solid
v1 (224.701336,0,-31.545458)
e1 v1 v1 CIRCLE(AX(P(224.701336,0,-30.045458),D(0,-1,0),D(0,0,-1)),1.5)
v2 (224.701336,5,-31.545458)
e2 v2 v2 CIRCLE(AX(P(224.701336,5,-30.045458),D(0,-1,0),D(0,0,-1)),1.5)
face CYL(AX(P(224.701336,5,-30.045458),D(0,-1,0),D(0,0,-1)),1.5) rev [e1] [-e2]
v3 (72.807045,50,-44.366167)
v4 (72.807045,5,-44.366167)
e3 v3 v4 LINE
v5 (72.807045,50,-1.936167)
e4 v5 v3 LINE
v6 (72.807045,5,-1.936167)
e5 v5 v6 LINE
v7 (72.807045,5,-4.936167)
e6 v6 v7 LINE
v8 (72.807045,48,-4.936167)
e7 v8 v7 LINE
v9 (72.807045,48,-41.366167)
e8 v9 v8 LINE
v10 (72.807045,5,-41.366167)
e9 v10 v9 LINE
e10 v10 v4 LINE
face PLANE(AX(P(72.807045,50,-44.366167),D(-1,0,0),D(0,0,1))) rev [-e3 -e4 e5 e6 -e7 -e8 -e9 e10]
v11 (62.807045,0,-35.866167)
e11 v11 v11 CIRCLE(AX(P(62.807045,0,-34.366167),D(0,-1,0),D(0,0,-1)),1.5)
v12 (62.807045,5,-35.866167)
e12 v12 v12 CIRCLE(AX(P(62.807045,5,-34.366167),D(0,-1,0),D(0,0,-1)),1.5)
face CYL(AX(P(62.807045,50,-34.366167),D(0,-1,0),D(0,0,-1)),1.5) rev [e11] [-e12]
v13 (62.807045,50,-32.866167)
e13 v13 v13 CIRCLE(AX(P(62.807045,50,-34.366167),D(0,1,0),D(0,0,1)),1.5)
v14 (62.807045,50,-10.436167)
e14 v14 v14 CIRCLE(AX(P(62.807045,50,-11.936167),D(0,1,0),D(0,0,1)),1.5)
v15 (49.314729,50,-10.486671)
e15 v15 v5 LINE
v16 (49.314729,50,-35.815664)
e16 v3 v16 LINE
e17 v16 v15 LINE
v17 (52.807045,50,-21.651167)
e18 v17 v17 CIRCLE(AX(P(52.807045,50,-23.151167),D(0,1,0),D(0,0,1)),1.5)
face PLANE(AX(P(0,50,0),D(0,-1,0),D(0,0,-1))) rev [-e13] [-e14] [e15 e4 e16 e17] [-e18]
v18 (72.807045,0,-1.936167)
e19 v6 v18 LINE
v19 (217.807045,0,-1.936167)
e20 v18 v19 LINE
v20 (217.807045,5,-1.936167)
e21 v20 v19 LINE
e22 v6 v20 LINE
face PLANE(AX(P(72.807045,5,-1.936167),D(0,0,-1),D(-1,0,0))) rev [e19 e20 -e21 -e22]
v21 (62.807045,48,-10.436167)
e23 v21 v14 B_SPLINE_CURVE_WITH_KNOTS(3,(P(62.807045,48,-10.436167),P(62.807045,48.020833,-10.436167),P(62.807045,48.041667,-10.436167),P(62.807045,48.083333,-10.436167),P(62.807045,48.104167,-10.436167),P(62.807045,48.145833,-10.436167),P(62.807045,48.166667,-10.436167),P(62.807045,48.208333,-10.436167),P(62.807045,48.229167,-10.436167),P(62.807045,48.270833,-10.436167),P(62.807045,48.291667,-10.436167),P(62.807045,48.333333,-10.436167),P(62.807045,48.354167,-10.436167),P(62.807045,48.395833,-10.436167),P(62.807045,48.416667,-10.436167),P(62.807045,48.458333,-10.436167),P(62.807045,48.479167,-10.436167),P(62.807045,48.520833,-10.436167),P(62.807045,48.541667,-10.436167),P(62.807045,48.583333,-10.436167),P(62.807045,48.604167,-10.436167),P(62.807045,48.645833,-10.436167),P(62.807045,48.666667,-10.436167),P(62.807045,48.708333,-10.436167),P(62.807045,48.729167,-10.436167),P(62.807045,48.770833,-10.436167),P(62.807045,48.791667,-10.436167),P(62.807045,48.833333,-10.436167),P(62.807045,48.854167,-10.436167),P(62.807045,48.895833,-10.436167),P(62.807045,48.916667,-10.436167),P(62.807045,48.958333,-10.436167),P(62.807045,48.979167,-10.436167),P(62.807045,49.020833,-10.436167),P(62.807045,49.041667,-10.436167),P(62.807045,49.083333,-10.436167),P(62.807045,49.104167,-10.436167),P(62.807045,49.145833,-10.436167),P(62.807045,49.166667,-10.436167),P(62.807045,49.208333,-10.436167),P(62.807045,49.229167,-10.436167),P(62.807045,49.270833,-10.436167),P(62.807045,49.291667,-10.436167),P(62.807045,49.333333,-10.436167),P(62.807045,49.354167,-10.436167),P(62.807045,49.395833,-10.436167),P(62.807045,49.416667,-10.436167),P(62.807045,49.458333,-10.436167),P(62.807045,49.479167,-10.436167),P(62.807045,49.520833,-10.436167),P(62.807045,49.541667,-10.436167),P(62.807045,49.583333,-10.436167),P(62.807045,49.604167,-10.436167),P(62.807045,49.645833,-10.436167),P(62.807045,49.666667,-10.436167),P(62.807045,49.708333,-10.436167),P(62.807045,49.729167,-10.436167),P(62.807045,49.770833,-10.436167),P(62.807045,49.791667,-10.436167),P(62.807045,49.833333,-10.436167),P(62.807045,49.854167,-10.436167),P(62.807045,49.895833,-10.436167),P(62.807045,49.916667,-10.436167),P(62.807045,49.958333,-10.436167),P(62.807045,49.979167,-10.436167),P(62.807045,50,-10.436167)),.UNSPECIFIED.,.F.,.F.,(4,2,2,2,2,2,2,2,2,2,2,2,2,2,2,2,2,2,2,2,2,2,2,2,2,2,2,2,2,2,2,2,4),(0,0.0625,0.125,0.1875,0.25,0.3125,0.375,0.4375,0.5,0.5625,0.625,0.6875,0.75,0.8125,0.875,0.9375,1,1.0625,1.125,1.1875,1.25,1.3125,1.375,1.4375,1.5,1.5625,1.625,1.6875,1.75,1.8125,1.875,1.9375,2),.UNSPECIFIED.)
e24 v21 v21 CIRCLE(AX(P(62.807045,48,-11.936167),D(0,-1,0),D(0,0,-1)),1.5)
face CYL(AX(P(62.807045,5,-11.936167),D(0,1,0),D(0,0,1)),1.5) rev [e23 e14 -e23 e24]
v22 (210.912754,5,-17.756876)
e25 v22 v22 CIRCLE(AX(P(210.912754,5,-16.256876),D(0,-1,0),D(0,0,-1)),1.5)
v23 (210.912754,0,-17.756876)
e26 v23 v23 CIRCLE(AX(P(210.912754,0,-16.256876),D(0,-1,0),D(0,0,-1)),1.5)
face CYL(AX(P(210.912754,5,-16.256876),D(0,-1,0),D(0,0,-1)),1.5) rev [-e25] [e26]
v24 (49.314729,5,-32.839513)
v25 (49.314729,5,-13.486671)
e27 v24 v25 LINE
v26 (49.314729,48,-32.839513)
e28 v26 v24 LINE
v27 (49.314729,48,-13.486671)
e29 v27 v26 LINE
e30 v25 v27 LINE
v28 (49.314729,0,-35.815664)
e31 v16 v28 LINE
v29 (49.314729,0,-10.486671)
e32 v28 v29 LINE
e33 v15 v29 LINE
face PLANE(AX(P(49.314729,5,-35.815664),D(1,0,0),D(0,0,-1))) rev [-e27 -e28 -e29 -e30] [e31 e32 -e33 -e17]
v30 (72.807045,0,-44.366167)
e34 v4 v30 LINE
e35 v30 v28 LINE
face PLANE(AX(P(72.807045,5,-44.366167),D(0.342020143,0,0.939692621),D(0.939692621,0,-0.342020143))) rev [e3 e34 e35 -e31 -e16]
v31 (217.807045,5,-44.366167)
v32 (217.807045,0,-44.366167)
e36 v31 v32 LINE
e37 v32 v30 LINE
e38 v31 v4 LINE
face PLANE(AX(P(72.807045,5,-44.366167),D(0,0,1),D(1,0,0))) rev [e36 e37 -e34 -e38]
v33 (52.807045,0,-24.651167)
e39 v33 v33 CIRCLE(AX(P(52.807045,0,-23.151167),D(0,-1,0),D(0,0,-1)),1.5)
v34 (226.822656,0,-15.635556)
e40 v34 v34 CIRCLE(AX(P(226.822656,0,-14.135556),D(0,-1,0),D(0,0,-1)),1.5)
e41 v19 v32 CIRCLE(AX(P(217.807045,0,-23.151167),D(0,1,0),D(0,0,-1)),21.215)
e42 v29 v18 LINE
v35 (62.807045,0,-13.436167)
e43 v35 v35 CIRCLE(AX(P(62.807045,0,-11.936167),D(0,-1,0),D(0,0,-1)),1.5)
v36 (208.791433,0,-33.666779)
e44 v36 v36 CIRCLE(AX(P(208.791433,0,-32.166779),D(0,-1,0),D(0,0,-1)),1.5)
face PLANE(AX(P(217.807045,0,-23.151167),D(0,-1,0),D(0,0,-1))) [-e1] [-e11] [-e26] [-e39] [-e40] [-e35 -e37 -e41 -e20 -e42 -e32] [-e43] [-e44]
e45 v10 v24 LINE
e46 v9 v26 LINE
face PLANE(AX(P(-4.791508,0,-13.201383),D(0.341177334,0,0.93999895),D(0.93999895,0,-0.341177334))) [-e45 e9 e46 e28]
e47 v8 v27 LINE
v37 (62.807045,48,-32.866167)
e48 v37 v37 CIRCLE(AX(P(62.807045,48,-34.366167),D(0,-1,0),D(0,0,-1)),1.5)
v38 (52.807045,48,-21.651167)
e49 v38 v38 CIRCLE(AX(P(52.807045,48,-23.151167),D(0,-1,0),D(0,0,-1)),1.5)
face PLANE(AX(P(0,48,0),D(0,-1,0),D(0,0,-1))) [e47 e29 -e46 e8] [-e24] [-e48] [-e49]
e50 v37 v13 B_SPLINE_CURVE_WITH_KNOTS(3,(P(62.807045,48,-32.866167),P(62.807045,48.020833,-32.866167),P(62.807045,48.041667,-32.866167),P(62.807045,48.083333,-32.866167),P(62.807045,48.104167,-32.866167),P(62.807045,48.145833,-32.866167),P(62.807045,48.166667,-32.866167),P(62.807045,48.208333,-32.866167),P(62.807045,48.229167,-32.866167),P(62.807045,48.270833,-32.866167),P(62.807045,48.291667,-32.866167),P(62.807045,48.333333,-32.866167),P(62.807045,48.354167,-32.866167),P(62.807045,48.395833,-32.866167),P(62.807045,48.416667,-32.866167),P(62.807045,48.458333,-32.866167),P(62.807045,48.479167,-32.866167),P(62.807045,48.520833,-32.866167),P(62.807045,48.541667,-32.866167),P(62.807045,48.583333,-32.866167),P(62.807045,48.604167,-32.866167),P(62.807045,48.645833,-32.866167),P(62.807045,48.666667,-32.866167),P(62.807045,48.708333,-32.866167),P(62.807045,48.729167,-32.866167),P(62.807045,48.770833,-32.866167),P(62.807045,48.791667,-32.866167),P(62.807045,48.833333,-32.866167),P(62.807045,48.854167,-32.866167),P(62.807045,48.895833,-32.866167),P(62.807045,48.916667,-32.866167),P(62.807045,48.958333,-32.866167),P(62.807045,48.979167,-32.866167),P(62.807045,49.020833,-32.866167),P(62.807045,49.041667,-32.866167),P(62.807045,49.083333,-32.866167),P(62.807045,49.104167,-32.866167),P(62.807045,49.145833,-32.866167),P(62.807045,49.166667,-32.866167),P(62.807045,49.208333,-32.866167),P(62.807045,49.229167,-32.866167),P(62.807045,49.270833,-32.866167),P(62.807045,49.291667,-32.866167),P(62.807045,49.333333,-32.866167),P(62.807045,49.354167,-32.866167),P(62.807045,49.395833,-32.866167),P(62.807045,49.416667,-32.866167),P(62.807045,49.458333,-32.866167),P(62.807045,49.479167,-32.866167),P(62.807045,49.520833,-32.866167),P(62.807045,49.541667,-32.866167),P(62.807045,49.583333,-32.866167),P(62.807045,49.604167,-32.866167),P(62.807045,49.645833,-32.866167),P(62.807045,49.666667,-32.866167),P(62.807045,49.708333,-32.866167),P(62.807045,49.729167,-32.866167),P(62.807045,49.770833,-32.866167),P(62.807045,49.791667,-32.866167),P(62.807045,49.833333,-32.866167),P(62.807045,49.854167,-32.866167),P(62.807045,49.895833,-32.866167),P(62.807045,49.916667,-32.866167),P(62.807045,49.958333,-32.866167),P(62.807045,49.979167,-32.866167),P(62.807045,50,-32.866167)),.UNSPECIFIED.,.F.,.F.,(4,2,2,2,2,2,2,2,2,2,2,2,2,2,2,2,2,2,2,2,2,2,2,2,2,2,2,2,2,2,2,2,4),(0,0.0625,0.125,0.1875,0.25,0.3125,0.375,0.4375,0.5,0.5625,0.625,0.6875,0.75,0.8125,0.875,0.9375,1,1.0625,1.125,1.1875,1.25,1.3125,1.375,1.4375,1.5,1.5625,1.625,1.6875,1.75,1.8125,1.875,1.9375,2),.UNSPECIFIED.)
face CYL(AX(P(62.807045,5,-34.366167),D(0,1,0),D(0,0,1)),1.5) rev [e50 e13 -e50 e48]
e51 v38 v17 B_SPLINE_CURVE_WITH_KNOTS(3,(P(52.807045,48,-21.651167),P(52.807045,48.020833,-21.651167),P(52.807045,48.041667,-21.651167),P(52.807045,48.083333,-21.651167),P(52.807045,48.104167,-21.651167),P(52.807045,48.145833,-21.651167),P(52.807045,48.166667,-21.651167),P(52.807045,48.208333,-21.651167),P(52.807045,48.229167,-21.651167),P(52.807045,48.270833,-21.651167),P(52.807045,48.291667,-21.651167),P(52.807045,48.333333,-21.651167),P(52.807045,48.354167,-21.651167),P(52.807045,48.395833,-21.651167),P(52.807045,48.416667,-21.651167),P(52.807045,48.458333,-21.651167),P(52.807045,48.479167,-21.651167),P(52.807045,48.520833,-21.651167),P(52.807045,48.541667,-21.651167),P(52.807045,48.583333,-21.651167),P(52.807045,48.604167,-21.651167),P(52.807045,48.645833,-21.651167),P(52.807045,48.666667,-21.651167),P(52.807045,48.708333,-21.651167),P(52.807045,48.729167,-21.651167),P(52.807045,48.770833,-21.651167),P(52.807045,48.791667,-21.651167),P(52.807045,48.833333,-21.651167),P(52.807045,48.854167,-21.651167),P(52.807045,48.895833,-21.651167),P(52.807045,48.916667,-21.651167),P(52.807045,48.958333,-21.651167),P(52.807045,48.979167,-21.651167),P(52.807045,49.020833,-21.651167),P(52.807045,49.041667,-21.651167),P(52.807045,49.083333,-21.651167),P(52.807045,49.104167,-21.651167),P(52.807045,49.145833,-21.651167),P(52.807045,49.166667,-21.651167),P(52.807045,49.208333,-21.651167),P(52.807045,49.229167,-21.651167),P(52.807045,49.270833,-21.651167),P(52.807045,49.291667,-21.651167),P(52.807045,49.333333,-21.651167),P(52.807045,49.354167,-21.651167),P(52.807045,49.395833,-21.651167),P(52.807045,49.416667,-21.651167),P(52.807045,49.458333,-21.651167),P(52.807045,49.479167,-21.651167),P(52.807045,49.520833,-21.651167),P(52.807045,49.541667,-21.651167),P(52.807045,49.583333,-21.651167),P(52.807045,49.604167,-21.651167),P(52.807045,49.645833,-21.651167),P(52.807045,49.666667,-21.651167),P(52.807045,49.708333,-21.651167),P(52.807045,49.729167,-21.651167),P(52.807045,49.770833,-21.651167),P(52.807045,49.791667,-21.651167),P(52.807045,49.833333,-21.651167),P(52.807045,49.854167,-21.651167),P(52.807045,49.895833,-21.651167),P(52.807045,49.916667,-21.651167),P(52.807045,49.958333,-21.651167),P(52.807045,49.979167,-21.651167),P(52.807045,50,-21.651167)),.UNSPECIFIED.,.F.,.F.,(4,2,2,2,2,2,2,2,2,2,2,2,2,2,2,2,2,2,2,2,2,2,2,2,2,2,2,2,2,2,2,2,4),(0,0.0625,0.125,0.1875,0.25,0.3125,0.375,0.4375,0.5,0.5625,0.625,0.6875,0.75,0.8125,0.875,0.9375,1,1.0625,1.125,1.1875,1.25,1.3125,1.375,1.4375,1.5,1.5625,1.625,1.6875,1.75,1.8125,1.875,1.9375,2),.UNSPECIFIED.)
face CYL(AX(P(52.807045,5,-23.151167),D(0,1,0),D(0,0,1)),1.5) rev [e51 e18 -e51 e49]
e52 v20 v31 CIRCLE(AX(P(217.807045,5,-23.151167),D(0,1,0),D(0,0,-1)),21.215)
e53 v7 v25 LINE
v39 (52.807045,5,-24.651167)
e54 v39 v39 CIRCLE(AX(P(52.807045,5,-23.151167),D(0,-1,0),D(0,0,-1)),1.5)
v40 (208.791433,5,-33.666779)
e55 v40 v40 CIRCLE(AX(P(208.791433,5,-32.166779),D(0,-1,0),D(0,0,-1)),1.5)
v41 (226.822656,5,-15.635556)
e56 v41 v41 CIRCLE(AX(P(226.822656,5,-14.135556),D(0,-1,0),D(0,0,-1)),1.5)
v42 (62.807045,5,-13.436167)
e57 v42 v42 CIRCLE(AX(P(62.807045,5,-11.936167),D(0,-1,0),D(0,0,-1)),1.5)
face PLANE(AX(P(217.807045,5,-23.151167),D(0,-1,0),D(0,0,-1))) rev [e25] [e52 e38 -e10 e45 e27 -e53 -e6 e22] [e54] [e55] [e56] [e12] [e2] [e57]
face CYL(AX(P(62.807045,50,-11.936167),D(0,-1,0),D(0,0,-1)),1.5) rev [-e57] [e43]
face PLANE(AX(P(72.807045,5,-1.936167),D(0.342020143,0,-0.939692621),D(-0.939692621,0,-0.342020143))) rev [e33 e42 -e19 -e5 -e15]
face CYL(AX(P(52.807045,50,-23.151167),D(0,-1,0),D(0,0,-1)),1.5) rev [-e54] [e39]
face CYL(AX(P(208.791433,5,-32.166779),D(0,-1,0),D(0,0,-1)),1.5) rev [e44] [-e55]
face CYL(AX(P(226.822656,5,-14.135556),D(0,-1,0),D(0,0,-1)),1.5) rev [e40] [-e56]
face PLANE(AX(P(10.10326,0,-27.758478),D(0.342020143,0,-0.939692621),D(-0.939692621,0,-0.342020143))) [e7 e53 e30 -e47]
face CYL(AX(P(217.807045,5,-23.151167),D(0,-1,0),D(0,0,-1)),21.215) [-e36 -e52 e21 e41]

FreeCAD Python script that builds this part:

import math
import FreeCAD as App
import Part
import Sketcher
Q = App.Units.Quantity


def add_polygon(sketch, points):
    """Adds a closed chain of lines whose ends are joined by coincident constraints."""
    first, n = sketch.GeometryCount, len(points)
    for a, b in zip(points, points[1:] + points[:1]):
        sketch.addGeometry(Part.LineSegment(App.Vector(*a, 0), App.Vector(*b, 0)), False)
    for i in range(n):
        sketch.addConstraint(Sketcher.Constraint("Coincident", first + i, 2, first + (i + 1) % n, 1))

doc = App.newDocument("Part")
params = doc.addObject("Spreadsheet::Sheet", "Params")
for row, (alias, value) in enumerate([
    ("sketch1_width", "145 mm"),
    ("sketch1_length", "25 mm"),
    ("pad1_length", "5 mm"),
    ("sketch2_diameter", "3 mm"),
    ("pocket1_length", "5 mm"),
    ("sketch3_diameter", "3 mm"),
    ("pocket2_length", "50 mm"),
    ("sketch4_length", "25 mm"),
    ("sketch4_height", "42.43 mm"),
    ("pad2_length", "45 mm"),
    ("sketch5_width", "43 mm"),
    ("sketch5_height", "36.43 mm"),
    ("sketch6_width", "43 mm"),
    ("sketch7_diameter", "3 mm"),
    ("pocket3_length", "45 mm"),
], start=1):
    params.set(f"A{row}", alias)
    params.set(f"B{row}", "=" + value)
    params.setAlias(f"B{row}", alias)

body = doc.addObject("PartDesign::Body", "Body")

# Sketch on XZ plane
sketch1 = doc.addObject("Sketcher::SketchObject", "Sketch")
body.addObject(sketch1)
sketch1.AttachmentSupport = (doc.XZ_Plane, [""])
sketch1.MapMode = "FlatFace"
sketch1.addGeometry([
    Part.LineSegment(App.Vector(72.807045, -44.366167, 0), App.Vector(49.314729, -35.815664, 0)),  # 0
    Part.LineSegment(App.Vector(49.314729, -35.815664, 0), App.Vector(49.314729, -10.486671, 0)),  # 1
    Part.LineSegment(App.Vector(49.314729, -10.486671, 0), App.Vector(72.807045, -1.936167, 0)),  # 2
    Part.LineSegment(App.Vector(72.807045, -1.936167, 0), App.Vector(217.807045, -1.936167, 0)),  # 3
    Part.ArcOfCircle(Part.Circle(App.Vector(217.807045, -23.151167, 0), App.Vector(0, 0, 1), 21.215), math.radians(-90), math.radians(90)),  # 4
    Part.LineSegment(App.Vector(217.807045, -44.366167, 0), App.Vector(72.807045, -44.366167, 0)),  # 5
], False)
sketch1.addConstraint([
    Sketcher.Constraint("Coincident", 0, 2, 1, 1),
    Sketcher.Constraint("Coincident", 1, 2, 2, 1),
    Sketcher.Constraint("Coincident", 2, 2, 3, 1),
    Sketcher.Constraint("Tangent", 3, 2, 4, 2),
    Sketcher.Constraint("Tangent", 4, 1, 5, 1),
    Sketcher.Constraint("Coincident", 5, 2, 0, 1),
    Sketcher.Constraint("Vertical", 1),
    Sketcher.Constraint("Horizontal", 3),
    Sketcher.Constraint("Horizontal", 5),
    Sketcher.Constraint("Vertical", 2, 2, 5, 2),
    Sketcher.Constraint("Equal", 0, 2),
    Sketcher.Constraint("DistanceX", 3, 1, 3, 2, Q("145 mm")),
    Sketcher.Constraint("Angle", 0, Q("160 deg")),
    Sketcher.Constraint("Distance", 0, Q("25 mm")),
    Sketcher.Constraint("Radius", 4, Q("21.215 mm")),
    Sketcher.Constraint("DistanceX", -1, 1, 0, 2, Q("49.314729 mm")),
    Sketcher.Constraint("DistanceY", 1, 2, -1, 1, Q("10.486671 mm")),
])
sketch1.setExpression("Constraints[11]", "Params.sketch1_width")
sketch1.setExpression("Constraints[13]", "Params.sketch1_length")
pad1 = doc.addObject("PartDesign::Pad", "Pad")
body.addObject(pad1)
pad1.Profile = sketch1
pad1.setExpression("Length", "Params.pad1_length")
pad1.Reversed = True

# Sketch on XZ plane
sketch2 = doc.addObject("Sketcher::SketchObject", "Sketch001")
body.addObject(sketch2)
sketch2.AttachmentSupport = (doc.XZ_Plane, [""])
sketch2.MapMode = "FlatFace"
sketch2.addGeometry([
    Part.Circle(App.Vector(226.822656, -14.135556, 0), App.Vector(0, 0, 1), 1.5),
    Part.Circle(App.Vector(224.701336, -30.045458, 0), App.Vector(0, 0, 1), 1.5),
    Part.Circle(App.Vector(208.791433, -32.166779, 0), App.Vector(0, 0, 1), 1.5),
    Part.Circle(App.Vector(210.912754, -16.256876, 0), App.Vector(0, 0, 1), 1.5),
], False)
sketch2.addConstraint([
    Sketcher.Constraint("Equal", 0, 1),
    Sketcher.Constraint("Equal", 1, 2),
    Sketcher.Constraint("Equal", 2, 3),
    Sketcher.Constraint("Diameter", 0, Q("3 mm")),
    Sketcher.Constraint("DistanceY", 1, 3, -1, 1, Q("30.045458 mm")),
    Sketcher.Constraint("DistanceY", 2, 3, -1, 1, Q("32.166779 mm")),
    Sketcher.Constraint("DistanceX", 1, 3, 0, 3, Q("2.12132 mm")),
    Sketcher.Constraint("DistanceX", 2, 3, 3, 3, Q("2.12132 mm")),
    Sketcher.Constraint("DistanceY", 3, 3, 0, 3, Q("2.12132 mm")),
    Sketcher.Constraint("DistanceX", -1, 1, 0, 3, Q("226.822656 mm")),
    Sketcher.Constraint("DistanceY", 0, 3, -1, 1, Q("14.135556 mm")),
    Sketcher.Constraint("DistanceX", -1, 1, 2, 3, Q("208.791433 mm")),
])
sketch2.setExpression("Constraints[3]", "Params.sketch2_diameter")
pocket1 = doc.addObject("PartDesign::Pocket", "Pocket")
body.addObject(pocket1)
pocket1.Profile = sketch2
pocket1.setExpression("Length", "Params.pocket1_length")

# Sketch on XZ plane
sketch3 = doc.addObject("Sketcher::SketchObject", "Sketch002")
body.addObject(sketch3)
sketch3.AttachmentSupport = (doc.XZ_Plane, [""])
sketch3.MapMode = "FlatFace"
sketch3.addGeometry([
    Part.Circle(App.Vector(62.807045, -11.936167, 0), App.Vector(0, 0, 1), 1.5),
    Part.Circle(App.Vector(52.807045, -23.151167, 0), App.Vector(0, 0, 1), 1.5),
    Part.Circle(App.Vector(62.807045, -34.366167, 0), App.Vector(0, 0, 1), 1.5),
], False)
sketch3.addConstraint([
    Sketcher.Constraint("Equal", 0, 1),
    Sketcher.Constraint("Equal", 1, 2),
    Sketcher.Constraint("Vertical", 0, 3, 2, 3),
    Sketcher.Constraint("Diameter", 0, Q("3 mm")),
    Sketcher.Constraint("DistanceX", 1, 3, 0, 3, Q("10 mm")),
    Sketcher.Constraint("DistanceY", 2, 3, 0, 3, Q("22.43 mm")),
    Sketcher.Constraint("DistanceY", 1, 3, 0, 3, Q("11.215 mm")),
    Sketcher.Constraint("DistanceX", -1, 1, 0, 3, Q("62.807045 mm")),
    Sketcher.Constraint("DistanceY", 0, 3, -1, 1, Q("11.936167 mm")),
])
sketch3.setExpression("Constraints[3]", "Params.sketch3_diameter")
pocket2 = doc.addObject("PartDesign::Pocket", "Pocket001")
body.addObject(pocket2)
pocket2.Profile = sketch3
pocket2.setExpression("Length", "Params.pocket2_length")

# Sketch on XZ plane
sketch4 = doc.addObject("Sketcher::SketchObject", "Sketch003")
body.addObject(sketch4)
sketch4.AttachmentSupport = (doc.XZ_Plane, [""])
sketch4.MapMode = "FlatFace"
sketch4.AttachmentOffset = App.Placement(App.Vector(0, 0, -5), App.Rotation())
add_polygon(sketch4, [(72.807045, -1.936167), (72.807045, -44.366167), (49.314729, -35.815664), (49.314729, -10.486671)])  # lines 0-3
sketch4.addConstraint([
    Sketcher.Constraint("Vertical", 0),
    Sketcher.Constraint("Vertical", 2),
    Sketcher.Constraint("Equal", 1, 3),
    Sketcher.Constraint("Angle", 1, Q("160 deg")),
    Sketcher.Constraint("Distance", 1, Q("25 mm")),
    Sketcher.Constraint("DistanceY", 0, 2, 0, 1, Q("42.43 mm")),
    Sketcher.Constraint("DistanceX", -1, 1, 1, 2, Q("49.314729 mm")),
    Sketcher.Constraint("DistanceY", 2, 2, -1, 1, Q("10.486671 mm")),
])
sketch4.setExpression("Constraints[8]", "Params.sketch4_length")
sketch4.setExpression("Constraints[9]", "Params.sketch4_height")
pad2 = doc.addObject("PartDesign::Pad", "Pad001")
body.addObject(pad2)
pad2.Profile = sketch4
pad2.setExpression("Length", "Params.pad2_length")
pad2.Reversed = True

# Sketch on YZ plane
sketch5 = doc.addObject("Sketcher::SketchObject", "Sketch004")
body.addObject(sketch5)
sketch5.AttachmentSupport = (doc.YZ_Plane, [""])
sketch5.MapMode = "FlatFace"
sketch5.AttachmentOffset = App.Placement(App.Vector(0, 0, 72.807045), App.Rotation())
add_polygon(sketch5, [(48, -4.936167), (5, -4.936167), (5, -41.366167), (48, -41.366167)])  # lines 0-3
sketch5.addConstraint([
    Sketcher.Constraint("Horizontal", 0),
    Sketcher.Constraint("Vertical", 1),
    Sketcher.Constraint("Horizontal", 2),
    Sketcher.Constraint("Vertical", 3),
    Sketcher.Constraint("DistanceX", 0, 2, 0, 1, Q("43 mm")),
    Sketcher.Constraint("DistanceX", -1, 1, 0, 2, Q("5 mm")),
    Sketcher.Constraint("DistanceY", 1, 2, 1, 1, Q("36.43 mm")),
    Sketcher.Constraint("DistanceY", 0, 2, -1, 1, Q("4.936167 mm")),
])
sketch5.setExpression("Constraints[8]", "Params.sketch5_width")
sketch5.setExpression("Constraints[10]", "Params.sketch5_height")

# Sketch on YZ plane
sketch6 = doc.addObject("Sketcher::SketchObject", "Sketch005")
body.addObject(sketch6)
sketch6.AttachmentSupport = (doc.YZ_Plane, [""])
sketch6.MapMode = "FlatFace"
sketch6.AttachmentOffset = App.Placement(App.Vector(0, 0, 49.314729), App.Rotation())
add_polygon(sketch6, [(48, -32.839513), (5, -32.839513), (5, -13.486671), (48, -13.486671)])  # lines 0-3
sketch6.addConstraint([
    Sketcher.Constraint("Horizontal", 0),
    Sketcher.Constraint("Vertical", 1),
    Sketcher.Constraint("Horizontal", 2),
    Sketcher.Constraint("Vertical", 3),
    Sketcher.Constraint("DistanceX", 0, 2, 0, 1, Q("43 mm")),
    Sketcher.Constraint("DistanceX", -1, 1, 0, 2, Q("5 mm")),
    Sketcher.Constraint("DistanceY", 1, 1, 1, 2, Q("19.352843 mm")),
    Sketcher.Constraint("DistanceY", 1, 2, -1, 1, Q("13.486671 mm")),
])
sketch6.setExpression("Constraints[8]", "Params.sketch6_width")

subtractiveloft = doc.addObject("PartDesign::SubtractiveLoft", "SubtractiveLoft")
body.addObject(subtractiveloft)
subtractiveloft.Profile = sketch5
subtractiveloft.Sections = [sketch6]

# Sketch on XZ plane
sketch7 = doc.addObject("Sketcher::SketchObject", "Sketch006")
body.addObject(sketch7)
sketch7.AttachmentSupport = (doc.XZ_Plane, [""])
sketch7.MapMode = "FlatFace"
sketch7.AttachmentOffset = App.Placement(App.Vector(0, 0, -5), App.Rotation())
sketch7.addGeometry([
    Part.Circle(App.Vector(62.807045, -34.366167, 0), App.Vector(0, 0, 1), 1.5),
    Part.Circle(App.Vector(52.807045, -23.151167, 0), App.Vector(0, 0, 1), 1.5),
    Part.Circle(App.Vector(62.807045, -11.936167, 0), App.Vector(0, 0, 1), 1.5),
], False)
sketch7.addConstraint([
    Sketcher.Constraint("Equal", 0, 1),
    Sketcher.Constraint("Equal", 1, 2),
    Sketcher.Constraint("Vertical", 0, 3, 2, 3),
    Sketcher.Constraint("Diameter", 0, Q("3 mm")),
    Sketcher.Constraint("DistanceX", 1, 3, 0, 3, Q("10 mm")),
    Sketcher.Constraint("DistanceY", 0, 3, 2, 3, Q("22.43 mm")),
    Sketcher.Constraint("DistanceY", 0, 3, 1, 3, Q("11.215 mm")),
    Sketcher.Constraint("DistanceX", -1, 1, 0, 3, Q("62.807045 mm")),
    Sketcher.Constraint("DistanceY", 0, 3, -1, 1, Q("34.366167 mm")),
])
sketch7.setExpression("Constraints[3]", "Params.sketch7_diameter")
pocket3 = doc.addObject("PartDesign::Pocket", "Pocket002")
body.addObject(pocket3)
pocket3.Profile = sketch7
pocket3.setExpression("Length", "Params.pocket3_length")

doc.recompute()
